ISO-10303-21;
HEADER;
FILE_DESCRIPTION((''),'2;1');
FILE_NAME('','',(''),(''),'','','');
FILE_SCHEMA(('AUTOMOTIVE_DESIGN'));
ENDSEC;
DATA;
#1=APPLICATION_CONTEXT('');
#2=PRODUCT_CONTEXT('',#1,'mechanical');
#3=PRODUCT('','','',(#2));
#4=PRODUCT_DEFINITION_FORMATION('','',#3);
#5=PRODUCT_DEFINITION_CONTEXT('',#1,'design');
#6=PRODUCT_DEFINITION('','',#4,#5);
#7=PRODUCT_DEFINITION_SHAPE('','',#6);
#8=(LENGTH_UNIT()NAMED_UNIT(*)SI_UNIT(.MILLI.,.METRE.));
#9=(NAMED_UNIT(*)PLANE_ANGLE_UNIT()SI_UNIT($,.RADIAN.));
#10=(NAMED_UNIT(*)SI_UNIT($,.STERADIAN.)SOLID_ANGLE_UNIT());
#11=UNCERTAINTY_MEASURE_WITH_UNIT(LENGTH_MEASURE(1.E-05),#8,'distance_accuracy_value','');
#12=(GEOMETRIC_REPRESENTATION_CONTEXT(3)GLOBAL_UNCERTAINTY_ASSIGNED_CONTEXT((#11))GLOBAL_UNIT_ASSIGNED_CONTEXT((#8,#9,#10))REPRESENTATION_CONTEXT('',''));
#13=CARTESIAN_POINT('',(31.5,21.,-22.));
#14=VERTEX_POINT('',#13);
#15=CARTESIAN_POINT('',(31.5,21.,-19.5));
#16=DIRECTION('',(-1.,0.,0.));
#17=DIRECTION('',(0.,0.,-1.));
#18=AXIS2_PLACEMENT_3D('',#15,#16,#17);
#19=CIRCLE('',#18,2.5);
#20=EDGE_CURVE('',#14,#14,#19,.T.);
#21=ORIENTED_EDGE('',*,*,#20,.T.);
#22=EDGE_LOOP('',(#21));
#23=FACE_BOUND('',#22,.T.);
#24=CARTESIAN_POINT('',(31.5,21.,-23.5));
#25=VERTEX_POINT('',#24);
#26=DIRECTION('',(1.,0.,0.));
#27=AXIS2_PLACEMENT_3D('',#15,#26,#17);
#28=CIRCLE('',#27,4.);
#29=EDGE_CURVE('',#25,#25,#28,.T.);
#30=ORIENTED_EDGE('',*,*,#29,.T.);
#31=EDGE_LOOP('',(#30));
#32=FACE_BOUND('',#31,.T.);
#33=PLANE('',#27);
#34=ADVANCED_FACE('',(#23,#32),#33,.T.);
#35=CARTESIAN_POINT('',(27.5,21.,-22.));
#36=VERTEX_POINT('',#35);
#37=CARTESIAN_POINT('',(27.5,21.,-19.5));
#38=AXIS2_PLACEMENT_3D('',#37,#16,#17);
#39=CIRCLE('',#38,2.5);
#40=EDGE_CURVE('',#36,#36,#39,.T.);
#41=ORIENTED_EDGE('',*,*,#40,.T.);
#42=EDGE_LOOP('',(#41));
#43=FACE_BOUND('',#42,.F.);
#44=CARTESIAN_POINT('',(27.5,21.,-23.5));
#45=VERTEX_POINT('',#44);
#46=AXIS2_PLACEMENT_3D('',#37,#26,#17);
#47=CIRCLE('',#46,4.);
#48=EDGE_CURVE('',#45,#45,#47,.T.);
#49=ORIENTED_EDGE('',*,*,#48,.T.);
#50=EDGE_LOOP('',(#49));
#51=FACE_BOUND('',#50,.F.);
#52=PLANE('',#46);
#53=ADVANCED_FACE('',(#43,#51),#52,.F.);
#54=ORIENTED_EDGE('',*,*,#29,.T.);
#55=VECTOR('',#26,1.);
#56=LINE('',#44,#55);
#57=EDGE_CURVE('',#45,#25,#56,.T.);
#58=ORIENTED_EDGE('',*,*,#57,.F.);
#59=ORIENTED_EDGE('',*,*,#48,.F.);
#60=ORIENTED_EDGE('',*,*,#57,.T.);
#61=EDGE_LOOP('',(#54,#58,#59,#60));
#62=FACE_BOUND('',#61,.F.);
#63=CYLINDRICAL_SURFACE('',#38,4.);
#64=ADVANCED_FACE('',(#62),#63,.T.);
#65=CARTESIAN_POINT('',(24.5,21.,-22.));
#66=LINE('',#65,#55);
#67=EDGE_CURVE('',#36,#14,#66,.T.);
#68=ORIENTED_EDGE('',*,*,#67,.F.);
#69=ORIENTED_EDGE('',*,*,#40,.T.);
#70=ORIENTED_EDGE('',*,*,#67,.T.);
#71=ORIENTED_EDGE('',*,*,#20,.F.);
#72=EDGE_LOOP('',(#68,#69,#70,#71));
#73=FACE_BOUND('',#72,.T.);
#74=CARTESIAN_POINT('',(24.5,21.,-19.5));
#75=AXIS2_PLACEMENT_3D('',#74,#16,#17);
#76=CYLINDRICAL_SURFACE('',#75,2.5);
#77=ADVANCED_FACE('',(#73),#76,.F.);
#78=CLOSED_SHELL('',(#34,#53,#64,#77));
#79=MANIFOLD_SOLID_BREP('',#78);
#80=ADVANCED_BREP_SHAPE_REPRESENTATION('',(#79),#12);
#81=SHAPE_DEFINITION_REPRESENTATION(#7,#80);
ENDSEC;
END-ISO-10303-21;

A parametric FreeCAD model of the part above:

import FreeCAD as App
import Part
import Sketcher

doc = App.newDocument("Part")
body = doc.addObject("PartDesign::Body", "Body")

# Sketch on YZ plane
sketch1 = body.newObject("Sketcher::SketchObject", "Sketch")
sketch1.AttachmentSupport = (doc.getObject("YZ_Plane"), [""])
sketch1.MapMode = "FlatFace"
sketch1.AttachmentOffset = App.Placement(App.Vector(0, 0, 23.5), App.Rotation())
sketch1.addGeometry(Part.Circle(App.Vector(-39, -22, 0), App.Vector(0, 0, 1), 2.5), False)
sketch1.addConstraint([
    Sketcher.Constraint("Diameter", 0, 5.0),
    Sketcher.Constraint("DistanceX", 0, 3, -1, 1, 39.0),
    Sketcher.Constraint("DistanceY", 0, 3, -1, 1, 22.0),
])
pad1 = body.newObject("PartDesign::Pad", "Pad")
pad1.Profile = sketch1
pad1.Length = 10
body2 = doc.addObject("PartDesign::Body", "Body001")

# Sketch on YZ plane
sketch2 = body2.newObject("Sketcher::SketchObject", "Sketch001")
sketch2.AttachmentSupport = (doc.getObject("YZ_Plane001"), [""])
sketch2.MapMode = "FlatFace"
sketch2.AttachmentOffset = App.Placement(App.Vector(0, 0, 26.5), App.Rotation())
sketch2.addGeometry(Part.Circle(App.Vector(-39, -22, 0), App.Vector(0, 0, 1), 4), False)
sketch2.addConstraint([
    Sketcher.Constraint("Diameter", 0, 8.0),
    Sketcher.Constraint("DistanceX", 0, 3, -1, 1, 39.0),
    Sketcher.Constraint("DistanceY", 0, 3, -1, 1, 22.0),
])
pad2 = body2.newObject("PartDesign::Pad", "Pad001")
pad2.Profile = sketch2
pad2.Length = 4
doc.recompute()

boolean = body2.newObject("PartDesign::Boolean", "Boolean")
boolean.Type = "Cut"
boolean.addObjects([body])
body3 = doc.addObject("PartDesign::Body", "Body002")
doc.recompute()

body2.Placement = App.Placement(App.Vector(1, 60, 2.5), App.Rotation(App.Vector(0, 0, 1), 0))
boolean2 = body3.newObject("PartDesign::Boolean", "Boolean001")
boolean2.Type = "Fuse"
boolean2.addObjects([body2])

doc.recompute()
